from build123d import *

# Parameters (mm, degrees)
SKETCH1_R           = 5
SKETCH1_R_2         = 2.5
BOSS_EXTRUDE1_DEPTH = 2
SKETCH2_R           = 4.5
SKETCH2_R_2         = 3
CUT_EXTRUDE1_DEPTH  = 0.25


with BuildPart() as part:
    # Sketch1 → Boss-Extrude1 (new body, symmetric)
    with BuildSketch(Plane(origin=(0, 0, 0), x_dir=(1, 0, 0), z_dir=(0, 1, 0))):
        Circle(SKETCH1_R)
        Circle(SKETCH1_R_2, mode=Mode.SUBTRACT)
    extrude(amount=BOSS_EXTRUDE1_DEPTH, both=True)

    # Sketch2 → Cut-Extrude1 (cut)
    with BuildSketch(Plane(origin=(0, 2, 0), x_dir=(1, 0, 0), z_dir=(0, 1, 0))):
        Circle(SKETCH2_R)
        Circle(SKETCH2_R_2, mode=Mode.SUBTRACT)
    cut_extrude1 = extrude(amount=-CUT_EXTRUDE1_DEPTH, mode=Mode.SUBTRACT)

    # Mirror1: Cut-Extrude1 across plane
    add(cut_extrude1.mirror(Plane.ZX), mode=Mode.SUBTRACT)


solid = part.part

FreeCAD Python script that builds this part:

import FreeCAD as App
import Part
import Sketcher

doc = App.newDocument("Part")
body = doc.addObject("PartDesign::Body", "Body")

# Sketch on XZ plane
sketch1 = body.newObject("Sketcher::SketchObject", "Sketch")
sketch1.AttachmentSupport = (doc.getObject("XZ_Plane"), [""])
sketch1.MapMode = "FlatFace"
sketch1.addGeometry([
    Part.Circle(App.Vector(0, 0, 0), App.Vector(0, 0, 1), 5),
    Part.Circle(App.Vector(0, 0, 0), App.Vector(0, 0, 1), 2.5),
], False)
sketch1.addConstraint([
    Sketcher.Constraint("Coincident", 0, 3, -1, 1),
    Sketcher.Constraint("Coincident", 1, 3, -1, 1),
    Sketcher.Constraint("Diameter", 0, 10.0),
    Sketcher.Constraint("Diameter", 1, 5.0),
])
pad1 = body.newObject("PartDesign::Pad", "Pad")
pad1.Profile = sketch1
pad1.Length = 4
pad1.Midplane = True

# Sketch on XZ plane
sketch2 = body.newObject("Sketcher::SketchObject", "Sketch001")
sketch2.AttachmentSupport = (doc.getObject("XZ_Plane"), [""])
sketch2.MapMode = "FlatFace"
sketch2.AttachmentOffset = App.Placement(App.Vector(0, 0, -2), App.Rotation())
sketch2.addGeometry([
    Part.Circle(App.Vector(0, 0, 0), App.Vector(0, 0, 1), 4.5),
    Part.Circle(App.Vector(0, 0, 0), App.Vector(0, 0, 1), 3),
], False)
sketch2.addConstraint([
    Sketcher.Constraint("Coincident", 0, 3, -1, 1),
    Sketcher.Constraint("Coincident", 1, 3, -1, 1),
    Sketcher.Constraint("Diameter", 0, 9.0),
    Sketcher.Constraint("Diameter", 1, 6.0),
])
pocket1 = body.newObject("PartDesign::Pocket", "Pocket")
pocket1.Profile = sketch2
pocket1.Length = 0.25
pocket1.Reversed = True
doc.recompute()

mirrored = body.newObject("PartDesign::Mirrored", "Mirrored")
mirrored.Originals = [pocket1]
mirrored.MirrorPlane = (doc.getObject("XZ_Plane"), [""])
body.Tip = mirrored

doc.recompute()
